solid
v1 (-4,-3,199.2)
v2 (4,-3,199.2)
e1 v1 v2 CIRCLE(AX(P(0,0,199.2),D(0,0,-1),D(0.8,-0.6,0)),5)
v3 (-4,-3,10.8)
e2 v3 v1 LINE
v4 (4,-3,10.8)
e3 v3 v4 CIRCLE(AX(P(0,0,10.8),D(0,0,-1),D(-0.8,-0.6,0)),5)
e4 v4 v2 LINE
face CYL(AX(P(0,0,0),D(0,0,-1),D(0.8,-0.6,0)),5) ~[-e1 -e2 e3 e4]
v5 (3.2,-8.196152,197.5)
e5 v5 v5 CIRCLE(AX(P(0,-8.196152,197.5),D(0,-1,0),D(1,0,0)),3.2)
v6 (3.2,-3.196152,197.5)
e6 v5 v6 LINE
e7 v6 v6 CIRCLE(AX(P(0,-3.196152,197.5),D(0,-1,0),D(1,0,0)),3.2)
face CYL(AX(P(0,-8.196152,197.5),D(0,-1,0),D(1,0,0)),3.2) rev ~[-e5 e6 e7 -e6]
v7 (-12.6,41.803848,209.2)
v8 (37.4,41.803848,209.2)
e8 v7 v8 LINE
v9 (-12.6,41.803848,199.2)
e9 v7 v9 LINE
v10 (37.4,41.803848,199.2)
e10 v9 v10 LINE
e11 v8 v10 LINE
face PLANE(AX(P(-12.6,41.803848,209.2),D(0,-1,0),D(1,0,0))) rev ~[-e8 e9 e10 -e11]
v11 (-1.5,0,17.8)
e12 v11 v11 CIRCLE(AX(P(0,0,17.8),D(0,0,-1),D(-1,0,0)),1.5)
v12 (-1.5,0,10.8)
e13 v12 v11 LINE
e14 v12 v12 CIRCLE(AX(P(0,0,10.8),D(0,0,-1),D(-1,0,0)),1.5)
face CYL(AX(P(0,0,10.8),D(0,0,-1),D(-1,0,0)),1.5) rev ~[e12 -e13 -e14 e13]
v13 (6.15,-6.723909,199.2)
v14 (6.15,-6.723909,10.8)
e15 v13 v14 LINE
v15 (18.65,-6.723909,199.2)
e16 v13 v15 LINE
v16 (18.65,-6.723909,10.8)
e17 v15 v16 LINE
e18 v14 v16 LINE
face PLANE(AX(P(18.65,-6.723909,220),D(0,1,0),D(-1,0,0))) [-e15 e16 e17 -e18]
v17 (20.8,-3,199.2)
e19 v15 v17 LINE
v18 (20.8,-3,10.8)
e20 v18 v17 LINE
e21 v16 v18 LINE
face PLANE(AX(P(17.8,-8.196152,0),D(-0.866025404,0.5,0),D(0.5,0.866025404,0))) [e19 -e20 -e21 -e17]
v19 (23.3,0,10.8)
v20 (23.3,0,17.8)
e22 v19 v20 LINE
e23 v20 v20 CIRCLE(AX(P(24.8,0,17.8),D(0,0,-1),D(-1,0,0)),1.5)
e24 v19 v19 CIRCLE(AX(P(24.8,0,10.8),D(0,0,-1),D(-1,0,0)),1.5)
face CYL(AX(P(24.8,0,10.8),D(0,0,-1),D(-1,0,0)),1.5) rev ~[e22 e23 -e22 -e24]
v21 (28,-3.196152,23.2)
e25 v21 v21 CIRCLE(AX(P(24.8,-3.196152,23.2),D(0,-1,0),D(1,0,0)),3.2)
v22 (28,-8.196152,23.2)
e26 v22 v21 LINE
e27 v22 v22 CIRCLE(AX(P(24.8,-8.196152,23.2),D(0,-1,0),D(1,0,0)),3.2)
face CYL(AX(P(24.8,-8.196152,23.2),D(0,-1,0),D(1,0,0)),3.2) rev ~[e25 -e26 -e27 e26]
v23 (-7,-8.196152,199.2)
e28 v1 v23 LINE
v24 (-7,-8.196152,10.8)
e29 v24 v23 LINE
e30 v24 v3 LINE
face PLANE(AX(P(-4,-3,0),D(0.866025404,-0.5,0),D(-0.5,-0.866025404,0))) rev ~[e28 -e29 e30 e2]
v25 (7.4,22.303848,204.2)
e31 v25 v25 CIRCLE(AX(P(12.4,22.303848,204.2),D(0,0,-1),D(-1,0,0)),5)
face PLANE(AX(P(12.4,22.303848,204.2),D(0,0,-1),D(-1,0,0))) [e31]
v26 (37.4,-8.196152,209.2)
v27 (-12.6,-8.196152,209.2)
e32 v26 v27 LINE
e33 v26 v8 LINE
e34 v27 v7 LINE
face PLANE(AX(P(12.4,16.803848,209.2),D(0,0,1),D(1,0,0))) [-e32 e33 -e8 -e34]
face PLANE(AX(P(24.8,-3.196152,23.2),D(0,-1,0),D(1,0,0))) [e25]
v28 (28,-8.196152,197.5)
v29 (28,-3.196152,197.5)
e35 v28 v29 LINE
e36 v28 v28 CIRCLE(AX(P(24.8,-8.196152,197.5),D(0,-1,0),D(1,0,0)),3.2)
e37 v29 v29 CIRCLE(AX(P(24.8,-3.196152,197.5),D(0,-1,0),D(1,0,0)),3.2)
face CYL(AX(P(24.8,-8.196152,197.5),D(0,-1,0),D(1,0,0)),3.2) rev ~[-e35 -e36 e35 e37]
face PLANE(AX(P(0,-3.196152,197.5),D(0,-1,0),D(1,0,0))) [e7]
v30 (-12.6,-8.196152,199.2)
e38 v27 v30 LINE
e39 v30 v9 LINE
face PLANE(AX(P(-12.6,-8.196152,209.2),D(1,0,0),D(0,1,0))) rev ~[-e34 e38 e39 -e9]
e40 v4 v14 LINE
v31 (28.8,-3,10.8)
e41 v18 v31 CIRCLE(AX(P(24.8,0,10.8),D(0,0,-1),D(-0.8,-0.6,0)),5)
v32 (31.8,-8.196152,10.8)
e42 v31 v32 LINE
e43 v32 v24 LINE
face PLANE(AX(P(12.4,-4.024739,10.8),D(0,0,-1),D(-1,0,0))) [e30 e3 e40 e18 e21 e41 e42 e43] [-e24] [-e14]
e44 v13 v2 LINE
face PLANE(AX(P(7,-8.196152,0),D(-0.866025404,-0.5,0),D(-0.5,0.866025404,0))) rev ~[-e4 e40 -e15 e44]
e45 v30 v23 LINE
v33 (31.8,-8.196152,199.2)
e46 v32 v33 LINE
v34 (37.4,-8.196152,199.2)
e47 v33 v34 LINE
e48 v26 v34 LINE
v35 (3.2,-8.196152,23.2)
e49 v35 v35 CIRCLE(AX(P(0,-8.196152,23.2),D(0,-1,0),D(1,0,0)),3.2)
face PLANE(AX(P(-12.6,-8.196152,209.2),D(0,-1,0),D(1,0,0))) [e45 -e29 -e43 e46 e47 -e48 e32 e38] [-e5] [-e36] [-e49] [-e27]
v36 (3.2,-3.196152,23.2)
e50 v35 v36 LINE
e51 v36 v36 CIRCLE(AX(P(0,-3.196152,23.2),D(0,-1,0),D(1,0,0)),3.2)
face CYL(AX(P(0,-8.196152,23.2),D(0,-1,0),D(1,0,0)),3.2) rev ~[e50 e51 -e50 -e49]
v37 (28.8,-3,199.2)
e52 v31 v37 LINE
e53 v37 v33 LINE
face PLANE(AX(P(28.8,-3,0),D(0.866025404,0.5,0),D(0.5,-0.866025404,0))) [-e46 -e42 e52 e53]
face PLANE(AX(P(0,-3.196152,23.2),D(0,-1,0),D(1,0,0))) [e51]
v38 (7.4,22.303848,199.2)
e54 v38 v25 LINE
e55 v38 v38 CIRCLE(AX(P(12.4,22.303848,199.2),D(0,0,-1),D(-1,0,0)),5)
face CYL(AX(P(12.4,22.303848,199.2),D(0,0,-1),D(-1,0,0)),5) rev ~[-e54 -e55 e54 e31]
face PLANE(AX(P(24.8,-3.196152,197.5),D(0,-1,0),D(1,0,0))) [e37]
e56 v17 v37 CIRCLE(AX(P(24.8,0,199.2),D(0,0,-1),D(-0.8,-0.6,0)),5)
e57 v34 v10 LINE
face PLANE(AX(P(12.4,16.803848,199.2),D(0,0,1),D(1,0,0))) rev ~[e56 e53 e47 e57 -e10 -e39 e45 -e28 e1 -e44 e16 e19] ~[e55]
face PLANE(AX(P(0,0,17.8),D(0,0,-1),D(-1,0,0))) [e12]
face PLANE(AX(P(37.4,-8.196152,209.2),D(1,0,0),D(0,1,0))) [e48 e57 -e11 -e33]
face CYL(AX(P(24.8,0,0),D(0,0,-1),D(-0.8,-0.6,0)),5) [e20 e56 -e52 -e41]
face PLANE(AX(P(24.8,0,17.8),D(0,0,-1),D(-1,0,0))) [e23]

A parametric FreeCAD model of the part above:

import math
import FreeCAD as App
import Part
import Sketcher
Q = App.Units.Quantity

doc = App.newDocument("Part")
body = doc.addObject("PartDesign::Body", "Body")
body.AllowCompound = True

sketch1 = body.newObject("Sketcher::SketchObject", "Sketch")
sketch1.AttachmentSupport = (doc.getObject("XY_Plane"), [""])
sketch1.MapMode = "FlatFace"
sketch1.addGeometry([
    Part.LineSegment(App.Vector(-4, -3, 0), App.Vector(-7, -8, 0)),
    Part.LineSegment(App.Vector(-7, -8, 0), App.Vector(7, -8, 0)),
    Part.LineSegment(App.Vector(7, -8, 0), App.Vector(4, -3, 0)),
    Part.ArcOfCircle(Part.Circle(App.Vector(0, 0, 0), App.Vector(0, 0, 1), 5), math.radians(-37), math.radians(217)),
    Part.LineSegment(App.Vector(32, -8, 0), App.Vector(29, -3, 0)),
    Part.ArcOfCircle(Part.Circle(App.Vector(25, 0, 0), App.Vector(0, 0, 1), 5), math.radians(-37), math.radians(217)),
    Part.LineSegment(App.Vector(21, -3, 0), App.Vector(18, -8, 0)),
    Part.LineSegment(App.Vector(18, -8, 0), App.Vector(32, -8, 0)),
], False)
sketch1.addConstraint([
    Sketcher.Constraint("Coincident", 0, 2, 1, 1),
    Sketcher.Constraint("Coincident", 1, 2, 2, 1),
    Sketcher.Constraint("Coincident", 2, 2, 3, 1),
    Sketcher.Constraint("Coincident", 3, 2, 0, 1),
    Sketcher.Constraint("Coincident", 4, 2, 5, 1),
    Sketcher.Constraint("Coincident", 5, 2, 6, 1),
    Sketcher.Constraint("Coincident", 6, 2, 7, 1),
    Sketcher.Constraint("Coincident", 7, 2, 4, 1),
    Sketcher.Constraint("Horizontal", 1),
    Sketcher.Constraint("Horizontal", 7),
    Sketcher.Constraint("Coincident", 3, 3, -1, 1),
    Sketcher.Constraint("Equal", 3, 5),
    Sketcher.Constraint("PointOnObject", 5, 3, -1),
    Sketcher.Constraint("Parallel", 2, 4),
    Sketcher.Constraint("Parallel", 0, 6),
    Sketcher.Constraint("Horizontal", 2, 2, 3, 2),
    Sketcher.Constraint("Horizontal", 3, 2, 4, 2),
    Sketcher.Constraint("Horizontal", 4, 2, 5, 2),
    Sketcher.Constraint("Horizontal", 1, 2, 6, 2),
    Sketcher.Constraint("Equal", 0, 2),
    Sketcher.Constraint("Radius", 3, 5.0),
    Sketcher.Constraint("DistanceX", 1, 1, 1, 2, 14.0),
    Sketcher.Constraint("Angle", 0, Q("-120 deg")),
    Sketcher.Constraint("Distance", 0, 6.0),
    Sketcher.Constraint("DistanceX", -1, 1, 5, 3, 24.8),
])
pad1 = body.newObject("PartDesign::Pad", "Pad")
pad1.Profile = sketch1
pad1.Length = 220

sketch2 = body.newObject("Sketcher::SketchObject", "Sketch001")
sketch2.AttachmentSupport = (doc.getObject("XY_Plane"), [""])
sketch2.MapMode = "FlatFace"
sketch2.AttachmentOffset = App.Placement(App.Vector(0, 0, 220), App.Rotation())
sketch2.addGeometry([
    Part.LineSegment(App.Vector(18.6, -8.2, 0), App.Vector(18.6, -6.7, 0)),
    Part.LineSegment(App.Vector(18.6, -6.7, 0), App.Vector(6.2, -6.7, 0)),
    Part.LineSegment(App.Vector(6.2, -6.7, 0), App.Vector(6.2, -8.2, 0)),
    Part.LineSegment(App.Vector(6.2, -8.2, 0), App.Vector(18.6, -8.2, 0)),
], False)
sketch2.addConstraint([
    Sketcher.Constraint("Coincident", 0, 2, 1, 1),
    Sketcher.Constraint("Coincident", 1, 2, 2, 1),
    Sketcher.Constraint("Coincident", 2, 2, 3, 1),
    Sketcher.Constraint("Coincident", 3, 2, 0, 1),
    Sketcher.Constraint("Vertical", 0),
    Sketcher.Constraint("Horizontal", 1),
    Sketcher.Constraint("Vertical", 2),
    Sketcher.Constraint("Horizontal", 3),
    Sketcher.Constraint("DistanceX", 1, 2, 1, 1, 12.5),
    Sketcher.Constraint("DistanceX", -1, 1, 0, 2, 18.65),
    Sketcher.Constraint("DistanceY", 0, 1, 0, 2, 1.472243),
    Sketcher.Constraint("DistanceY", 0, 2, -1, 1, 6.723909),
])
pad2 = body.newObject("PartDesign::Pad", "Pad001")
pad2.Profile = sketch2
pad2.Length = 220
pad2.Reversed = True

sketch3 = body.newObject("Sketcher::SketchObject", "Sketch002")
sketch3.AttachmentSupport = (doc.getObject("XY_Plane"), [""])
sketch3.MapMode = "FlatFace"
sketch3.addGeometry([
    Part.Circle(App.Vector(0, 0, 0), App.Vector(0, 0, 1), 1.4),
    Part.Circle(App.Vector(24.8, 0, 0), App.Vector(0, 0, 1), 1.4),
], False)
sketch3.addConstraint([
    Sketcher.Constraint("Coincident", 0, 3, -1, 1),
    Sketcher.Constraint("Equal", 0, 1),
    Sketcher.Constraint("PointOnObject", 1, 3, -1),
    Sketcher.Constraint("Diameter", 0, 2.74),
    Sketcher.Constraint("DistanceX", -1, 1, 1, 3, 24.8),
])
pocket1 = body.newObject("PartDesign::Pocket", "Pocket")
pocket1.Profile = sketch3
pocket1.Length = 7
pocket1.Reversed = True

sketch4 = body.newObject("Sketcher::SketchObject", "Sketch003")
sketch4.AttachmentSupport = (doc.getObject("XY_Plane"), [""])
sketch4.MapMode = "FlatFace"
sketch4.AttachmentOffset = App.Placement(App.Vector(0, 0, 220), App.Rotation())
sketch4.addGeometry([
    Part.Circle(App.Vector(0, 0, 0), App.Vector(0, 0, 1), 1.4),
    Part.Circle(App.Vector(24.8, 0, 0), App.Vector(0, 0, 1), 1.4),
], False)
sketch4.addConstraint([
    Sketcher.Constraint("Coincident", 0, 3, -1, 1),
    Sketcher.Constraint("Equal", 0, 1),
    Sketcher.Constraint("PointOnObject", 1, 3, -1),
    Sketcher.Constraint("Diameter", 0, 2.74),
    Sketcher.Constraint("DistanceX", -1, 1, 1, 3, 24.8),
])
pocket2 = body.newObject("PartDesign::Pocket", "Pocket001")
pocket2.Profile = sketch4
pocket2.Length = 7

sketch5 = body.newObject("Sketcher::SketchObject", "Sketch004")
sketch5.AttachmentSupport = (doc.getObject("XY_Plane"), [""])
sketch5.MapMode = "FlatFace"
sketch5.addGeometry([
    Part.LineSegment(App.Vector(28.8, -3, 0), App.Vector(31.8, -8.2, 0)),
    Part.LineSegment(App.Vector(31.8, -8.2, 0), App.Vector(-7, -8.2, 0)),
    Part.LineSegment(App.Vector(-7, -8.2, 0), App.Vector(-4, -3, 0)),
    Part.ArcOfCircle(Part.Circle(App.Vector(0, 0, 0), App.Vector(0, 0, 1), 5), math.radians(-37), math.radians(217)),
    Part.LineSegment(App.Vector(4, -3, 0), App.Vector(6.2, -6.7, 0)),
    Part.LineSegment(App.Vector(6.2, -6.7, 0), App.Vector(18.6, -6.7, 0)),
    Part.LineSegment(App.Vector(18.6, -6.7, 0), App.Vector(20.8, -3, 0)),
    Part.ArcOfCircle(Part.Circle(App.Vector(24.8, 0, 0), App.Vector(0, 0, 1), 5), math.radians(-37), math.radians(217)),
], False)
sketch5.addConstraint([
    Sketcher.Constraint("Coincident", 0, 2, 1, 1),
    Sketcher.Constraint("Coincident", 1, 2, 2, 1),
    Sketcher.Constraint("Coincident", 2, 2, 3, 2),
    Sketcher.Constraint("Coincident", 3, 1, 4, 1),
    Sketcher.Constraint("Coincident", 4, 2, 5, 1),
    Sketcher.Constraint("Coincident", 5, 2, 6, 1),
    Sketcher.Constraint("Coincident", 6, 2, 7, 2),
    Sketcher.Constraint("Coincident", 7, 1, 0, 1),
    Sketcher.Constraint("Horizontal", 1),
    Sketcher.Constraint("Horizontal", 5),
    Sketcher.Constraint("Coincident", 3, 3, -1, 1),
    Sketcher.Constraint("Equal", 3, 7),
    Sketcher.Constraint("PointOnObject", 7, 3, -1),
    Sketcher.Constraint("Parallel", 0, 4),
    Sketcher.Constraint("Parallel", 2, 6),
    Sketcher.Constraint("Horizontal", 2, 2, 3, 1),
    Sketcher.Constraint("Horizontal", 3, 1, 6, 2),
    Sketcher.Constraint("Horizontal", 6, 2, 7, 1),
    Sketcher.Constraint("Equal", 0, 2),
    Sketcher.Constraint("Radius", 3, 5.0),
    Sketcher.Constraint("Angle", 0, Q("-60 deg")),
    Sketcher.Constraint("Distance", 0, 6.0),
    Sketcher.Constraint("DistanceX", 1, 2, 1, 1, 38.8),
    Sketcher.Constraint("DistanceX", 5, 1, 5, 2, 12.5),
    Sketcher.Constraint("DistanceX", 1, 2, -1, 1, 7.0),
])
pocket3 = body.newObject("PartDesign::Pocket", "Pocket002")
pocket3.Profile = sketch5
pocket3.Length = 10.8
pocket3.Reversed = True

sketch6 = body.newObject("Sketcher::SketchObject", "Sketch005")
sketch6.AttachmentSupport = (doc.getObject("XY_Plane"), [""])
sketch6.MapMode = "FlatFace"
sketch6.AttachmentOffset = App.Placement(App.Vector(0, 0, 220), App.Rotation())
sketch6.addGeometry([
    Part.LineSegment(App.Vector(20.8, -3, 0), App.Vector(18.6, -6.7, 0)),
    Part.LineSegment(App.Vector(18.6, -6.7, 0), App.Vector(6.2, -6.7, 0)),
    Part.LineSegment(App.Vector(6.2, -6.7, 0), App.Vector(4, -3, 0)),
    Part.ArcOfCircle(Part.Circle(App.Vector(0, 0, 0), App.Vector(0, 0, 1), 5), math.radians(-37), math.radians(217)),
    Part.LineSegment(App.Vector(-4, -3, 0), App.Vector(-7, -8.2, 0)),
    Part.LineSegment(App.Vector(-7, -8.2, 0), App.Vector(31.8, -8.2, 0)),
    Part.LineSegment(App.Vector(31.8, -8.2, 0), App.Vector(28.8, -3, 0)),
    Part.ArcOfCircle(Part.Circle(App.Vector(24.8, 0, 0), App.Vector(0, 0, 1), 5), math.radians(-37), math.radians(217)),
], False)
sketch6.addConstraint([
    Sketcher.Constraint("Coincident", 0, 2, 1, 1),
    Sketcher.Constraint("Coincident", 1, 2, 2, 1),
    Sketcher.Constraint("Coincident", 2, 2, 3, 1),
    Sketcher.Constraint("Coincident", 3, 2, 4, 1),
    Sketcher.Constraint("Coincident", 4, 2, 5, 1),
    Sketcher.Constraint("Coincident", 5, 2, 6, 1),
    Sketcher.Constraint("Coincident", 6, 2, 7, 1),
    Sketcher.Constraint("Coincident", 7, 2, 0, 1),
    Sketcher.Constraint("Horizontal", 1),
    Sketcher.Constraint("Horizontal", 5),
    Sketcher.Constraint("Coincident", 3, 3, -1, 1),
    Sketcher.Constraint("Equal", 3, 7),
    Sketcher.Constraint("PointOnObject", 7, 3, -1),
    Sketcher.Constraint("Parallel", 0, 4),
    Sketcher.Constraint("Parallel", 2, 6),
    Sketcher.Constraint("Horizontal", 2, 2, 3, 2),
    Sketcher.Constraint("Horizontal", 3, 2, 6, 2),
    Sketcher.Constraint("Horizontal", 6, 2, 7, 2),
    Sketcher.Constraint("Equal", 0, 2),
    Sketcher.Constraint("Radius", 3, 5.0),
    Sketcher.Constraint("Angle", 0, Q("-120 deg")),
    Sketcher.Constraint("Distance", 4, 6.0),
    Sketcher.Constraint("DistanceX", 1, 2, 1, 1, 12.5),
    Sketcher.Constraint("DistanceX", 5, 1, 5, 2, 38.8),
    Sketcher.Constraint("DistanceX", -1, 1, 2, 2, 4.0),
])
pocket4 = body.newObject("PartDesign::Pocket", "Pocket003")
pocket4.Profile = sketch6
pocket4.Length = 10.8

sketch7 = body.newObject("Sketcher::SketchObject", "Sketch006")
sketch7.AttachmentSupport = (doc.getObject("XY_Plane"), [""])
sketch7.MapMode = "FlatFace"
sketch7.AttachmentOffset = App.Placement(App.Vector(0, 0, 209.2), App.Rotation())
sketch7.addGeometry([
    Part.Circle(App.Vector(0, 0, 0), App.Vector(0, 0, 1), 2),
    Part.Circle(App.Vector(24.8, 0, 0), App.Vector(0, 0, 1), 2),
], False)
sketch7.addConstraint([
    Sketcher.Constraint("Coincident", 0, 3, -1, 1),
    Sketcher.Constraint("Equal", 0, 1),
    Sketcher.Constraint("PointOnObject", 1, 3, -1),
    Sketcher.Constraint("Diameter", 0, 4.0),
    Sketcher.Constraint("DistanceX", -1, 1, 1, 3, 24.8),
])
pocket5 = body.newObject("PartDesign::Pocket", "Pocket004")
pocket5.Profile = sketch7
pocket5.Length = 7

sketch8 = body.newObject("Sketcher::SketchObject", "Sketch007")
sketch8.AttachmentSupport = (doc.getObject("XY_Plane"), [""])
sketch8.MapMode = "FlatFace"
sketch8.AttachmentOffset = App.Placement(App.Vector(0, 0, 10.8), App.Rotation())
sketch8.addGeometry([
    Part.Circle(App.Vector(0, 0, 0), App.Vector(0, 0, 1), 1.5),
    Part.Circle(App.Vector(24.8, 0, 0), App.Vector(0, 0, 1), 1.5),
], False)
sketch8.addConstraint([
    Sketcher.Constraint("Coincident", 0, 3, -1, 1),
    Sketcher.Constraint("Equal", 0, 1),
    Sketcher.Constraint("PointOnObject", 1, 3, -1),
    Sketcher.Constraint("Diameter", 0, 3.0),
    Sketcher.Constraint("DistanceX", -1, 1, 1, 3, 24.8),
])
pocket6 = body.newObject("PartDesign::Pocket", "Pocket005")
pocket6.Profile = sketch8
pocket6.Length = 7
pocket6.Reversed = True

sketch9 = body.newObject("Sketcher::SketchObject", "Sketch008")
sketch9.AttachmentSupport = (doc.getObject("XY_Plane"), [""])
sketch9.MapMode = "FlatFace"
sketch9.AttachmentOffset = App.Placement(App.Vector(0, 0, 209.2), App.Rotation())
sketch9.addGeometry([
    Part.LineSegment(App.Vector(-13, 42, 0), App.Vector(-13, -8, 0)),
    Part.LineSegment(App.Vector(-13, -8, 0), App.Vector(37, -8, 0)),
    Part.LineSegment(App.Vector(37, -8, 0), App.Vector(37, 42, 0)),
    Part.LineSegment(App.Vector(37, 42, 0), App.Vector(-13, 42, 0)),
], False)
sketch9.addConstraint([
    Sketcher.Constraint("Coincident", 0, 2, 1, 1),
    Sketcher.Constraint("Coincident", 1, 2, 2, 1),
    Sketcher.Constraint("Coincident", 2, 2, 3, 1),
    Sketcher.Constraint("Coincident", 3, 2, 0, 1),
    Sketcher.Constraint("Vertical", 0),
    Sketcher.Constraint("Horizontal", 1),
    Sketcher.Constraint("Vertical", 2),
    Sketcher.Constraint("Horizontal", 3),
    Sketcher.Constraint("Equal", 3, 0),
    Sketcher.Constraint("DistanceX", 1, 1, 1, 2, 50.0),
    Sketcher.Constraint("DistanceX", 0, 2, -1, 1, 12.6),
    Sketcher.Constraint("DistanceY", 0, 2, -1, 1, 8.196152),
])
pad3 = body.newObject("PartDesign::Pad", "Pad002")
pad3.Profile = sketch9
pad3.Length = 10
pad3.Reversed = True

sketch10 = body.newObject("Sketcher::SketchObject", "Sketch009")
sketch10.AttachmentSupport = (doc.getObject("XY_Plane"), [""])
sketch10.MapMode = "FlatFace"
sketch10.AttachmentOffset = App.Placement(App.Vector(0, 0, 199.2), App.Rotation())
sketch10.addGeometry(Part.Circle(App.Vector(12, 22, 0), App.Vector(0, 0, 1), 5), False)
sketch10.addConstraint([
    Sketcher.Constraint("Diameter", 0, 10.0),
    Sketcher.Constraint("DistanceX", -1, 1, 0, 3, 12.4),
    Sketcher.Constraint("DistanceY", -1, 1, 0, 3, 22.303848),
])
pocket7 = body.newObject("PartDesign::Pocket", "Pocket006")
pocket7.Profile = sketch10
pocket7.Length = 5
pocket7.Reversed = True

sketch11 = body.newObject("Sketcher::SketchObject", "Sketch010")
sketch11.AttachmentSupport = (doc.getObject("XZ_Plane"), [""])
sketch11.MapMode = "FlatFace"
sketch11.AttachmentOffset = App.Placement(App.Vector(0, 0, 8.196152), App.Rotation())
sketch11.addGeometry([
    Part.Circle(App.Vector(24.8, 197.5, 0), App.Vector(0, 0, 1), 3.2),
    Part.Circle(App.Vector(24.8, 23.2, 0), App.Vector(0, 0, 1), 3.2),
    Part.Circle(App.Vector(0, 23.2, 0), App.Vector(0, 0, 1), 3.2),
    Part.Circle(App.Vector(0, 197.5, 0), App.Vector(0, 0, 1), 3.2),
], False)
sketch11.addConstraint([
    Sketcher.Constraint("Equal", 0, 1),
    Sketcher.Constraint("Equal", 1, 2),
    Sketcher.Constraint("Equal", 2, 3),
    Sketcher.Constraint("PointOnObject", 2, 3, -2),
    Sketcher.Constraint("PointOnObject", 3, 3, -2),
    Sketcher.Constraint("Horizontal", 1, 3, 2, 3),
    Sketcher.Constraint("Horizontal", 0, 3, 3, 3),
    Sketcher.Constraint("Vertical", 0, 3, 1, 3),
    Sketcher.Constraint("Diameter", 0, 6.4),
    Sketcher.Constraint("DistanceX", -1, 1, 0, 3, 24.8),
    Sketcher.Constraint("DistanceY", -1, 1, 0, 3, 197.5),
    Sketcher.Constraint("DistanceY", -1, 1, 1, 3, 23.2),
])
pocket8 = body.newObject("PartDesign::Pocket", "Pocket007")
pocket8.Profile = sketch11
pocket8.Length = 5

doc.recompute()
